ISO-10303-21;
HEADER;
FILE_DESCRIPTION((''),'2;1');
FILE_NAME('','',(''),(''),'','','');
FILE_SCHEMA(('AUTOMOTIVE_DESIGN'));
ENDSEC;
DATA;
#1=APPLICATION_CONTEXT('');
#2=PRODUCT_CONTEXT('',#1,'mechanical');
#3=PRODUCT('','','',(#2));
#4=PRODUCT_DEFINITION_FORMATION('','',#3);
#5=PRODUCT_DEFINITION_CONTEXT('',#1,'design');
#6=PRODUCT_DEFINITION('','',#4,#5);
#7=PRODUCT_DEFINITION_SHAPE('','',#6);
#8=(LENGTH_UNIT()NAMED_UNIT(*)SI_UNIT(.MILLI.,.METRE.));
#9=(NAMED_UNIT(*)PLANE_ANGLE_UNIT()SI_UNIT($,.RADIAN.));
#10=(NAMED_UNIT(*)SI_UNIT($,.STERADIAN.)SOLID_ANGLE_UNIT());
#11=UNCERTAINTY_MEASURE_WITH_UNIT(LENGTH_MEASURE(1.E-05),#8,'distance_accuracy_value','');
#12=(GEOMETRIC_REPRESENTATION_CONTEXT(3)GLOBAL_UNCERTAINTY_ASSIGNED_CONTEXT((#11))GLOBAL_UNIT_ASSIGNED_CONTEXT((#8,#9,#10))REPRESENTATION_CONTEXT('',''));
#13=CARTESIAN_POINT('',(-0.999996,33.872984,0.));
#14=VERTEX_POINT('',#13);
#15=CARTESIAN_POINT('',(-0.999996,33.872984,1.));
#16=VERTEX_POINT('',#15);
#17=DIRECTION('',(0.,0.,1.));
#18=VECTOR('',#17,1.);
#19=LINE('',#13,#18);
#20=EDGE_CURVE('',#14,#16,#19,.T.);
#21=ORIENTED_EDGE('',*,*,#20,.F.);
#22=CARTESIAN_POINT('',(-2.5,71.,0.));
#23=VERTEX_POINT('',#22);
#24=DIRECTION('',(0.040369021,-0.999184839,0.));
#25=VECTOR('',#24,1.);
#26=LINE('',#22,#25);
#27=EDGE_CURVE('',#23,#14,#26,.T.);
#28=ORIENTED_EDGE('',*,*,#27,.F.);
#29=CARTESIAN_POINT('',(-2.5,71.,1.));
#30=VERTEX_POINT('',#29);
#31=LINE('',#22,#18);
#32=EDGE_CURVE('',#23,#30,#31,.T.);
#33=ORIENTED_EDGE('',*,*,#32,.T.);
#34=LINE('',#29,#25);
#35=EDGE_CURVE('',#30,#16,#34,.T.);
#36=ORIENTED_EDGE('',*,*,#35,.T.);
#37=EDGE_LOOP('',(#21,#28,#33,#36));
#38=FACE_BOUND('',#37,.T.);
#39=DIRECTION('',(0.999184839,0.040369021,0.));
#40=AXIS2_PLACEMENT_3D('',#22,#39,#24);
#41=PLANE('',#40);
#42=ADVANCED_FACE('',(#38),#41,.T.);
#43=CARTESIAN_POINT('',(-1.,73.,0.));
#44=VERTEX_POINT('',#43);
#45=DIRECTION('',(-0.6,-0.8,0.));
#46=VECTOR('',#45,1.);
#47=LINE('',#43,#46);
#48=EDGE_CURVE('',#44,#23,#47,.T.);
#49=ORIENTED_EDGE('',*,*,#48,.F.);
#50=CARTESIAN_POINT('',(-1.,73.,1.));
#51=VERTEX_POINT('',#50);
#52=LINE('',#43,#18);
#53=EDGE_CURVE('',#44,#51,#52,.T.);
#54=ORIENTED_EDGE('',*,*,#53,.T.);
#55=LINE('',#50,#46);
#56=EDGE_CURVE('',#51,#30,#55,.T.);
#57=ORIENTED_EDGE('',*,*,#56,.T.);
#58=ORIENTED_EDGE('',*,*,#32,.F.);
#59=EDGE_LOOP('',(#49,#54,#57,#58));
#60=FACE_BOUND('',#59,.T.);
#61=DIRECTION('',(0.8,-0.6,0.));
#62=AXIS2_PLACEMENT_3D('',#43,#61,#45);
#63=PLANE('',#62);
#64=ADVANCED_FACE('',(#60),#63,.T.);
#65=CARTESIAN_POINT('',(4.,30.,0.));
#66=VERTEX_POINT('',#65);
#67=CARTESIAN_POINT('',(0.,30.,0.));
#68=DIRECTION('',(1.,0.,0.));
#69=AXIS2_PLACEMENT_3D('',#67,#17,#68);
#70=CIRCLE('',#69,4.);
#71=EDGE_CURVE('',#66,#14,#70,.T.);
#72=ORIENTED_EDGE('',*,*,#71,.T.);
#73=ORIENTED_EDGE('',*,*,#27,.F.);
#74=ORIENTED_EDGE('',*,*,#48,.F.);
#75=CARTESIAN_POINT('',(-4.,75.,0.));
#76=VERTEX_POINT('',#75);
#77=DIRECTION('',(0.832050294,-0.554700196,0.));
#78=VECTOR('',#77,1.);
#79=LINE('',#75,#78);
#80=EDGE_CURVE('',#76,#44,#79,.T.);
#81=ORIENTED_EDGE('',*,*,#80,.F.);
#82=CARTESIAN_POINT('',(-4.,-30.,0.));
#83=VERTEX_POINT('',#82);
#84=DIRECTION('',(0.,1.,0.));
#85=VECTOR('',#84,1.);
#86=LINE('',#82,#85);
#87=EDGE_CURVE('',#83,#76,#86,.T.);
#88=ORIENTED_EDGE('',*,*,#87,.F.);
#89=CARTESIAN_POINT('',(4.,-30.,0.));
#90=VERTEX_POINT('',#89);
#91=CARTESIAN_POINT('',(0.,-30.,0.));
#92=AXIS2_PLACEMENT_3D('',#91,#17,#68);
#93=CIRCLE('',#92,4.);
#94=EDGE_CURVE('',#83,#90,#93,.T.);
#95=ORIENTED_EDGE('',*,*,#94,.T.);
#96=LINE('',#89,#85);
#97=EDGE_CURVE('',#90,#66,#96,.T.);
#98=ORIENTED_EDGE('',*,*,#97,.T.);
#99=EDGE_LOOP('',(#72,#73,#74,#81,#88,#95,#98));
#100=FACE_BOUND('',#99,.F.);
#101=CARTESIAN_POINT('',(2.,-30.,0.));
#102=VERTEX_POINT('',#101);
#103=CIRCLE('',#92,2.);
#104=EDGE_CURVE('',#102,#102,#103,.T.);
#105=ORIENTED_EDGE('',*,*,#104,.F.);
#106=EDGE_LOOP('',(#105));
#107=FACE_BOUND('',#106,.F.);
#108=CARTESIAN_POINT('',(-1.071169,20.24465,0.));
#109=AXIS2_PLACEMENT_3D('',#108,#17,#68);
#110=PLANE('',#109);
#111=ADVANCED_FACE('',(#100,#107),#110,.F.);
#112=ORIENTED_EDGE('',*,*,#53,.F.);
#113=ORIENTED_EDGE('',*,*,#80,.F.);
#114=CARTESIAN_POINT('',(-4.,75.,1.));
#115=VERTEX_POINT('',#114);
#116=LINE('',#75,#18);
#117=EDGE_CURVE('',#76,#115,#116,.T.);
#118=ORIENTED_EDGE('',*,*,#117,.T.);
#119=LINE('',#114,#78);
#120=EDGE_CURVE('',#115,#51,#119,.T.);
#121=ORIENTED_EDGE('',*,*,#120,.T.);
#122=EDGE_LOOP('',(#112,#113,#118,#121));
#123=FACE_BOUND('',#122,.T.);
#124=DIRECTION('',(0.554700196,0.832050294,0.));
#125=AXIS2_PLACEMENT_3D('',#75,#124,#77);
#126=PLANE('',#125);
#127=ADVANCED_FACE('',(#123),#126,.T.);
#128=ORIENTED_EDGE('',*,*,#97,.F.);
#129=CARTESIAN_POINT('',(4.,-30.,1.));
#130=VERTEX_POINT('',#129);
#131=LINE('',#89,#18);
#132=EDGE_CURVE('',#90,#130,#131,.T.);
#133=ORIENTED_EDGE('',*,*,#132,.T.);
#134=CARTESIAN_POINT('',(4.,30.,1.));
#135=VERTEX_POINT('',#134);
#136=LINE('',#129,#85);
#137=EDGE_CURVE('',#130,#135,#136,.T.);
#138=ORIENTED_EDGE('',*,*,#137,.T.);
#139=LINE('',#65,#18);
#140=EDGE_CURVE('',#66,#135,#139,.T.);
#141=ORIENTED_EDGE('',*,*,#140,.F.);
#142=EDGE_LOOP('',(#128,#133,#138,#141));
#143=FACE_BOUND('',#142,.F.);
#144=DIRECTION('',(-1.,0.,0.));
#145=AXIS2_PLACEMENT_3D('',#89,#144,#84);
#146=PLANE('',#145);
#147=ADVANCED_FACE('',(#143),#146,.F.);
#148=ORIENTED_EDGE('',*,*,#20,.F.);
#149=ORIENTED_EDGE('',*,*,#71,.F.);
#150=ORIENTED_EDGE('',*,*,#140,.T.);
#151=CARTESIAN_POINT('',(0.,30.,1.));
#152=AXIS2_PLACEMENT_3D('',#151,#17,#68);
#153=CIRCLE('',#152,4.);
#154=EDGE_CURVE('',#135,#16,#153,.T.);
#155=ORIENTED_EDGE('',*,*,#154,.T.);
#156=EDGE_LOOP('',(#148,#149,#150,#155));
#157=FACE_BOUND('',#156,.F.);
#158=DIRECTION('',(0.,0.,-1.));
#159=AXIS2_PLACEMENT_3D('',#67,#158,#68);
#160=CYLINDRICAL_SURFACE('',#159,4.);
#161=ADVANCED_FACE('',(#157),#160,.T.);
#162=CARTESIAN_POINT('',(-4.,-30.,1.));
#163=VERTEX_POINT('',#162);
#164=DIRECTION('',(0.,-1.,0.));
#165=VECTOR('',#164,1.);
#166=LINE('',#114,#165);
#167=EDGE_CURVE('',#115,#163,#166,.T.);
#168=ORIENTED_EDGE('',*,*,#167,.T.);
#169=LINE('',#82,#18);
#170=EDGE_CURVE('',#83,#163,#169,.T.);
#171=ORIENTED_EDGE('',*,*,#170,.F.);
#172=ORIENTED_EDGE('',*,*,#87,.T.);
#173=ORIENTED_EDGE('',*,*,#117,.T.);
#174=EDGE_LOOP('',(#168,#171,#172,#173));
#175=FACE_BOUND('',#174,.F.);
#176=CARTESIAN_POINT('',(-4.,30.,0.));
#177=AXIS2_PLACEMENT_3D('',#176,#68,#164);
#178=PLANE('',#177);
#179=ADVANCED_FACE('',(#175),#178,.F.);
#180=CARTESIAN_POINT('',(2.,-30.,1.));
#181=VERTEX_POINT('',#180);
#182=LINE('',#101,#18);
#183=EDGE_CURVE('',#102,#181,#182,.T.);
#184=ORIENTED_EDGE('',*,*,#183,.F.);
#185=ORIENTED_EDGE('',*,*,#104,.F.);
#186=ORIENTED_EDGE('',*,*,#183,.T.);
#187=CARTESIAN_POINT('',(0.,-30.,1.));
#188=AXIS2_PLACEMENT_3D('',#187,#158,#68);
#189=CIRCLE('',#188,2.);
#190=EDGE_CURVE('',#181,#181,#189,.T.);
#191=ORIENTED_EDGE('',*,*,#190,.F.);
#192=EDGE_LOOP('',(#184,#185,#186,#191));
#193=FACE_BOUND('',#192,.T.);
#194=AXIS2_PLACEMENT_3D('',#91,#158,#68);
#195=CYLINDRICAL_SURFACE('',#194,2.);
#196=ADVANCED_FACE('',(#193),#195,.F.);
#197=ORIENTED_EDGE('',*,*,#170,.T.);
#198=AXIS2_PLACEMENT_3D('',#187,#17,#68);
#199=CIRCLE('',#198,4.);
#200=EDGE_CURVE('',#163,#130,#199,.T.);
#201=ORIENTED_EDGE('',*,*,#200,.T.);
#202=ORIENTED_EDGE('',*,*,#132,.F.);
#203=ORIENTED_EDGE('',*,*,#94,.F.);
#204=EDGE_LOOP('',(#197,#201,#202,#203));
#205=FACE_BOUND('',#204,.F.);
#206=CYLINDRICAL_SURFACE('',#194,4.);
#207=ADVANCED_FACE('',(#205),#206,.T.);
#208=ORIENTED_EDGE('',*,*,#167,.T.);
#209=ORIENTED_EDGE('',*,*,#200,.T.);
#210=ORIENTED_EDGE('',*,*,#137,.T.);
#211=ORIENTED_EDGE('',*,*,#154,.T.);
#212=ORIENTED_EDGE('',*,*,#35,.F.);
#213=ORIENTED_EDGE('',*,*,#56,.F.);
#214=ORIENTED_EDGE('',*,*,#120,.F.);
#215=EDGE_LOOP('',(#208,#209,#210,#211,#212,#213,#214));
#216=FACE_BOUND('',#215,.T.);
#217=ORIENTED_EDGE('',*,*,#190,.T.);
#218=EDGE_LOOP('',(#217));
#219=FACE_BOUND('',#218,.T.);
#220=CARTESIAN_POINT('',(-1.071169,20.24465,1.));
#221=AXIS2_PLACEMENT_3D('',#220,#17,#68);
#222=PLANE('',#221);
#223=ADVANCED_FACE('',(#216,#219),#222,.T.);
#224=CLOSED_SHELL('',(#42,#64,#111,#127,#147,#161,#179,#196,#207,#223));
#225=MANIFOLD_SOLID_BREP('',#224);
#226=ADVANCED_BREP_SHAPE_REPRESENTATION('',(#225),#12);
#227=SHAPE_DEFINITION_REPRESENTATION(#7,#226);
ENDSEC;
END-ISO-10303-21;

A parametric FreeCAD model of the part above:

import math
import FreeCAD as App
import Part
import Sketcher
Q = App.Units.Quantity

doc = App.newDocument("Part")
body = doc.addObject("PartDesign::Body", "Body")

sketch1 = body.newObject("Sketcher::SketchObject", "Sketch")
sketch1.AttachmentSupport = (doc.getObject("XY_Plane"), [""])
sketch1.MapMode = "FlatFace"
sketch1.addGeometry([
    Part.ArcOfCircle(Part.Circle(App.Vector(0, -30, 0), App.Vector(0, 0, 1), 4), math.radians(180), math.radians(360)),
    Part.LineSegment(App.Vector(4, -30, 0), App.Vector(4, 30, 0)),
    Part.ArcOfCircle(Part.Circle(App.Vector(0, 30, 0), App.Vector(0, 0, 1), 4), math.radians(0), math.radians(104)),
    Part.LineSegment(App.Vector(-1, 33.9, 0), App.Vector(-2.5, 71, 0)),
    Part.LineSegment(App.Vector(-2.5, 71, 0), App.Vector(-1, 73, 0)),
    Part.LineSegment(App.Vector(-1, 73, 0), App.Vector(-4, 75, 0)),
    Part.LineSegment(App.Vector(-4, 75, 0), App.Vector(-4, -30, 0)),
], False)
sketch1.addConstraint([
    Sketcher.Constraint("Tangent", 0, 2, 1, 1),
    Sketcher.Constraint("Tangent", 1, 2, 2, 1),
    Sketcher.Constraint("Coincident", 2, 2, 3, 1),
    Sketcher.Constraint("Coincident", 3, 2, 4, 1),
    Sketcher.Constraint("Coincident", 4, 2, 5, 1),
    Sketcher.Constraint("Coincident", 5, 2, 6, 1),
    Sketcher.Constraint("Tangent", 6, 2, 0, 1),
    Sketcher.Constraint("Vertical", 1),
    Sketcher.Constraint("Vertical", 6),
    Sketcher.Constraint("Equal", 0, 2),
    Sketcher.Constraint("Symmetric", 0, 3, 2, 3, -1, 1),
    Sketcher.Constraint("Vertical", 2, 2, 4, 2),
    Sketcher.Constraint("Radius", 0, Q("4 mm")),
    Sketcher.Constraint("DistanceY", 3, 2, 5, 2, Q("4 mm")),
    Sketcher.Constraint("Distance", 4, Q("2.5 mm")),
    Sketcher.Constraint("DistanceX", 3, 2, -1, 1, Q("2.5 mm")),
    Sketcher.Constraint("DistanceY", 1, 1, 1, 2, Q("60 mm")),
    Sketcher.Constraint("DistanceY", 6, 2, 6, 1, Q("105 mm")),
    Sketcher.Constraint("DistanceX", 2, 2, -1, 1, Q("1 mm")),
])
pad1 = body.newObject("PartDesign::Pad", "Pad")
pad1.Profile = sketch1
pad1.Length = 1

sketch2 = body.newObject("Sketcher::SketchObject", "Sketch001")
sketch2.AttachmentSupport = (doc.getObject("XY_Plane"), [""])
sketch2.MapMode = "FlatFace"
sketch2.addGeometry(Part.Circle(App.Vector(0, -30, 0), App.Vector(0, 0, 1), 2), False)
sketch2.addConstraint([
    Sketcher.Constraint("PointOnObject", 0, 3, -2),
    Sketcher.Constraint("Diameter", 0, Q("4 mm")),
    Sketcher.Constraint("DistanceY", 0, 3, -1, 1, Q("30 mm")),
])
pocket1 = body.newObject("PartDesign::Pocket", "Pocket")
pocket1.Profile = sketch2
pocket1.Type = "UpToFirst"
pocket1.Reversed = True

doc.recompute()
